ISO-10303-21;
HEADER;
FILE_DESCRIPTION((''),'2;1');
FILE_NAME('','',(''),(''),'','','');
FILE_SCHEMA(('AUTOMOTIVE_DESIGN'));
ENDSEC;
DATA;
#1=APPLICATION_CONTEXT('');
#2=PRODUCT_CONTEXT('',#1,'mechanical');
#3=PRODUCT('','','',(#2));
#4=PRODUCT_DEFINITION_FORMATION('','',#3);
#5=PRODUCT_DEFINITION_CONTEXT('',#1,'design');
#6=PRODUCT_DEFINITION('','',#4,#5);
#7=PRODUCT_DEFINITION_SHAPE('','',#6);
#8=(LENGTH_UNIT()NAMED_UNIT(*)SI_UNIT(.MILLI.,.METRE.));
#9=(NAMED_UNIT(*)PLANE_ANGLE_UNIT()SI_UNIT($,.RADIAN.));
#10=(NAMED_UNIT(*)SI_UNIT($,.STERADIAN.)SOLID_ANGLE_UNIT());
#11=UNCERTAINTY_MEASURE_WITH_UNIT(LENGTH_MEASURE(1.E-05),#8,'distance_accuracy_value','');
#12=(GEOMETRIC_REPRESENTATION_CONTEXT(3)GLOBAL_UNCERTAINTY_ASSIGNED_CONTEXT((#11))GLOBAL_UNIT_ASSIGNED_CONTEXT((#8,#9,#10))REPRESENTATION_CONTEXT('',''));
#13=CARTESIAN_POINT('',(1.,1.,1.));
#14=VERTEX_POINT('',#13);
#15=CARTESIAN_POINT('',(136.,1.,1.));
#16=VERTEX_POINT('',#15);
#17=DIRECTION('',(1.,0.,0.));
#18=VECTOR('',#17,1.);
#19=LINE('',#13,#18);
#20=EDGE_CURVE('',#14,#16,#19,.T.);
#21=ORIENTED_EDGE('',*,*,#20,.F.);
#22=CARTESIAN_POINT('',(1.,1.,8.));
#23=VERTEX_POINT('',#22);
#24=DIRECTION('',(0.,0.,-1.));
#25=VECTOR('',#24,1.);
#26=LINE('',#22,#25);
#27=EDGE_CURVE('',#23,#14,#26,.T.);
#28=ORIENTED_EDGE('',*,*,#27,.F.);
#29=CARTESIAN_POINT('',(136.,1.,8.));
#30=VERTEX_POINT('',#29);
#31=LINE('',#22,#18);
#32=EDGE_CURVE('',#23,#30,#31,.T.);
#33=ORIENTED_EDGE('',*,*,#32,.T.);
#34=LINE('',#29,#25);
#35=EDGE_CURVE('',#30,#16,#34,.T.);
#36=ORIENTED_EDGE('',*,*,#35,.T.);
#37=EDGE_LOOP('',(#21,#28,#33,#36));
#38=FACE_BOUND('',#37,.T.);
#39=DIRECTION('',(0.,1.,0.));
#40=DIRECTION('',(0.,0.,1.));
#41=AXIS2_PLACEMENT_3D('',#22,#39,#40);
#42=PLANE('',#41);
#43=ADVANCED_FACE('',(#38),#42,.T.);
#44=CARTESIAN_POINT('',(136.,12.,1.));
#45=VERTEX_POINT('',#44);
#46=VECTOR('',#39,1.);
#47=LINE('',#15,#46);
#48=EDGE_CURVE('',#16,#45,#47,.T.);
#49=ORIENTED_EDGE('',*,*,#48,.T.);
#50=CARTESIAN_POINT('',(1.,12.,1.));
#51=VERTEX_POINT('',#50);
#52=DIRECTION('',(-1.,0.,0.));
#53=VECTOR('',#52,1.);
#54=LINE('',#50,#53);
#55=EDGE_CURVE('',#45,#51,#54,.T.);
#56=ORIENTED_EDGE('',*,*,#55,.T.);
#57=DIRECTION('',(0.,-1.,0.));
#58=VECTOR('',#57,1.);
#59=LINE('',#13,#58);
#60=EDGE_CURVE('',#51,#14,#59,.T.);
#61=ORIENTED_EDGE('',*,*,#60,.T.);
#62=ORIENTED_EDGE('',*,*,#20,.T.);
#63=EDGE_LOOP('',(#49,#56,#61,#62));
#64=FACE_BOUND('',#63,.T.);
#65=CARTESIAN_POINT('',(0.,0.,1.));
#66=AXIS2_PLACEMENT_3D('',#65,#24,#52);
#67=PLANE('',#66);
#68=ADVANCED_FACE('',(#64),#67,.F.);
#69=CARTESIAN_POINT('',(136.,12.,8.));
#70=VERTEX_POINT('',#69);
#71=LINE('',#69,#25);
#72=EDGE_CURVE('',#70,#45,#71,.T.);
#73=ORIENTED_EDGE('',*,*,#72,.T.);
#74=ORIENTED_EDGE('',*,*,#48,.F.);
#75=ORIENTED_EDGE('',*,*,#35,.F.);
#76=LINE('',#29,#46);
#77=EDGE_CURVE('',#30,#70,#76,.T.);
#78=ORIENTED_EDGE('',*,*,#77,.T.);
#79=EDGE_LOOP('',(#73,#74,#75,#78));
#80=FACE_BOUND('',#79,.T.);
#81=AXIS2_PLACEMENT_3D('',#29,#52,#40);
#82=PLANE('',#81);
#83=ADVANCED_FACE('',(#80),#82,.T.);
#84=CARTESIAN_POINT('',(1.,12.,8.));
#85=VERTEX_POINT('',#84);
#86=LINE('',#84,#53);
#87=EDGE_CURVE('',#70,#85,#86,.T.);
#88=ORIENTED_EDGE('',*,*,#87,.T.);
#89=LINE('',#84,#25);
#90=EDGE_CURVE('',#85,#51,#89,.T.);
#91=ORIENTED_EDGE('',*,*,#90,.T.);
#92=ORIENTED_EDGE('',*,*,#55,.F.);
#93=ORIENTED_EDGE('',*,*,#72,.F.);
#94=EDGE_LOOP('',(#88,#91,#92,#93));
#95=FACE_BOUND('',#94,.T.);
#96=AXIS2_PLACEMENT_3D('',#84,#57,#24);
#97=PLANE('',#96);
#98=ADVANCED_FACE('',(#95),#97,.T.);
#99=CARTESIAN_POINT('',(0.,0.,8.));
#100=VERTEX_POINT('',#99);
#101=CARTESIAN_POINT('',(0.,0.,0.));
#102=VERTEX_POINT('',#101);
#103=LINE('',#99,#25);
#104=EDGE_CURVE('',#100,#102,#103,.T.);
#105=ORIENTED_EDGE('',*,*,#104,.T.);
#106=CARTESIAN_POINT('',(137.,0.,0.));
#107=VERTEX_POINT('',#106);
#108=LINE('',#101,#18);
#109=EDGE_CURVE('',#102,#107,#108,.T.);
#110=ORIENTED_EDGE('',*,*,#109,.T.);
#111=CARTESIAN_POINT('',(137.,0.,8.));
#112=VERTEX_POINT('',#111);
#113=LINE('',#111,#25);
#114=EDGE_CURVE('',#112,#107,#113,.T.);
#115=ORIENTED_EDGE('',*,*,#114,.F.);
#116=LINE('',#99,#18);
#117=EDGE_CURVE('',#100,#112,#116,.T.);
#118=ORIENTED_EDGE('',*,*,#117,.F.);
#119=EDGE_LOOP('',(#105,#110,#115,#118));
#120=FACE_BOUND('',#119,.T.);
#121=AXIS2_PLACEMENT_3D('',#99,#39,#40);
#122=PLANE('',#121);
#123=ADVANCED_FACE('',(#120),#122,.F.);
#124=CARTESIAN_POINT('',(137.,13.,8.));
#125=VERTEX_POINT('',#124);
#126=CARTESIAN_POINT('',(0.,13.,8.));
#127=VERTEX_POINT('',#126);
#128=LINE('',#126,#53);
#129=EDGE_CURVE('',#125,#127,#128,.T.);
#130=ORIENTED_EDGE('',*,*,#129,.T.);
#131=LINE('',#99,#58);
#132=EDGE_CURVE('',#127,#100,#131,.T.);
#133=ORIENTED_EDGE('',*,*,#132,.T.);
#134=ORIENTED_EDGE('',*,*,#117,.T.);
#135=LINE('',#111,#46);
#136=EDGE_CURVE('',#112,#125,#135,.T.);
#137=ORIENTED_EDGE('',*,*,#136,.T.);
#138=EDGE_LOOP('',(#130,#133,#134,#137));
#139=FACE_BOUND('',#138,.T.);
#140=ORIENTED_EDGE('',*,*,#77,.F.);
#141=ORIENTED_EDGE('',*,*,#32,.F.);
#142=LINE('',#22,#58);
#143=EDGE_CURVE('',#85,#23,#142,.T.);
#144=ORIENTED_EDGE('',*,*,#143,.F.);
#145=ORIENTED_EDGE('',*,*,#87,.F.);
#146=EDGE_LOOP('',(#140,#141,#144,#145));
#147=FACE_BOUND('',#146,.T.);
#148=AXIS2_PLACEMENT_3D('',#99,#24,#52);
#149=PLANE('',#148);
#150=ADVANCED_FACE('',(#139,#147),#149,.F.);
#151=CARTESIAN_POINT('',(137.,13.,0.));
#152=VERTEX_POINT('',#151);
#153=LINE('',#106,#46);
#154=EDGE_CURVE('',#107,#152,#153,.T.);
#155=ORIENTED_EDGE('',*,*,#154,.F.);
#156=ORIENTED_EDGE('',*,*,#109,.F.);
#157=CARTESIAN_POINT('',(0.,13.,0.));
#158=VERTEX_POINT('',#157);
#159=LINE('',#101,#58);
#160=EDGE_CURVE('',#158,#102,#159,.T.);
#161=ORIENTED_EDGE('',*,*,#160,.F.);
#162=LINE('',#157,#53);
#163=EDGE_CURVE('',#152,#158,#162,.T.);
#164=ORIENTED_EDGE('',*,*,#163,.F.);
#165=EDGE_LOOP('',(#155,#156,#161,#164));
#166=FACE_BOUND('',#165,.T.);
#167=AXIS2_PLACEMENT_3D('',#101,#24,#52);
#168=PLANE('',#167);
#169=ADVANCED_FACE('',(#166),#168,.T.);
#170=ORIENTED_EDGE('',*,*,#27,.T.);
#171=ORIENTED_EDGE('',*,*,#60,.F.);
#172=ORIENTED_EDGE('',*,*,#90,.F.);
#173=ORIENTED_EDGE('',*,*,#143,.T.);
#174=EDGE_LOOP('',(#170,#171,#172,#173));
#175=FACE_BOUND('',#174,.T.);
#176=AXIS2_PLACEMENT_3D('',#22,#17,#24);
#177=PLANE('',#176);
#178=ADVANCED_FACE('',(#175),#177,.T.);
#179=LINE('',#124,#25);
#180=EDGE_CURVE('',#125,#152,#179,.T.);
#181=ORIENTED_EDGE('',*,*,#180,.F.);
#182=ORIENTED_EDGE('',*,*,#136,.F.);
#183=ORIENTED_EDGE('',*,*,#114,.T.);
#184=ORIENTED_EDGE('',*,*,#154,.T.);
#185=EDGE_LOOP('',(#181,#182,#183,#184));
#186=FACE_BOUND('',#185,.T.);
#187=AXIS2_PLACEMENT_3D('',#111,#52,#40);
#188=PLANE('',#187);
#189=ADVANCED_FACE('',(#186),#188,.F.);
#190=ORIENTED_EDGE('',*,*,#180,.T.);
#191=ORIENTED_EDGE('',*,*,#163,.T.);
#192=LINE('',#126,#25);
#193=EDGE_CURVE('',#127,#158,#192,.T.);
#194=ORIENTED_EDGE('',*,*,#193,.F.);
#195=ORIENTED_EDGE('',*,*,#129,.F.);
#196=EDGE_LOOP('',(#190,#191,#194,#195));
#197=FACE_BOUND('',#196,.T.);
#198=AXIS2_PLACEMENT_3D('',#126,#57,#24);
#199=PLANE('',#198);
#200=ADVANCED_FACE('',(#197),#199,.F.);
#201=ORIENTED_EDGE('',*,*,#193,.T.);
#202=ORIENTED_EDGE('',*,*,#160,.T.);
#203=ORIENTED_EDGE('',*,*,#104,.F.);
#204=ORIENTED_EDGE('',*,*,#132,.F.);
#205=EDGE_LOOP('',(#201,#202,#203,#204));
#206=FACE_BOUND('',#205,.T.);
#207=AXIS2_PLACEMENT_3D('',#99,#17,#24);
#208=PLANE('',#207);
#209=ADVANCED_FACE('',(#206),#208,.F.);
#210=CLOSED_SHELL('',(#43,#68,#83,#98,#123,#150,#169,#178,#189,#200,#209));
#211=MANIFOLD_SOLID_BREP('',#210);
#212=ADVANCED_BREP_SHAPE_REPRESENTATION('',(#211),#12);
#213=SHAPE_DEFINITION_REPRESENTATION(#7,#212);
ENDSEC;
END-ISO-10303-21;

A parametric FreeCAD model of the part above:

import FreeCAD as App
import Part
import Sketcher

V = App.Vector

doc = App.newDocument("Part")
body = doc.addObject("PartDesign::Body", "Body")

# Sketch on XY plane
sketch1 = body.newObject("Sketcher::SketchObject", "Sketch")
sketch1.AttachmentSupport = (doc.getObject("XY_Plane"), [""])
sketch1.MapMode = "FlatFace"
sketch1.addGeometry(Part.LineSegment(V(0, 13, 0), V(0, 0, 0)), False)
sketch1.addGeometry(Part.LineSegment(V(0, 0, 0), V(137, 0, 0)), False)
sketch1.addGeometry(Part.LineSegment(V(137, 0, 0), V(137, 13, 0)), False)
sketch1.addGeometry(Part.LineSegment(V(137, 13, 0), V(0, 13, 0)), False)
sketch1.addGeometry(Part.LineSegment(V(136, 1, 0), V(1, 1, 0)), False)
sketch1.addGeometry(Part.LineSegment(V(1, 1, 0), V(1, 12, 0)), False)
sketch1.addGeometry(Part.LineSegment(V(1, 12, 0), V(136, 12, 0)), False)
sketch1.addGeometry(Part.LineSegment(V(136, 12, 0), V(136, 1, 0)), False)
sketch1.addConstraint(Sketcher.Constraint("Coincident", 0, 2, 1, 1))
sketch1.addConstraint(Sketcher.Constraint("Coincident", 1, 2, 2, 1))
sketch1.addConstraint(Sketcher.Constraint("Coincident", 2, 2, 3, 1))
sketch1.addConstraint(Sketcher.Constraint("Coincident", 3, 2, 0, 1))
sketch1.addConstraint(Sketcher.Constraint("Coincident", 4, 2, 5, 1))
sketch1.addConstraint(Sketcher.Constraint("Coincident", 5, 2, 6, 1))
sketch1.addConstraint(Sketcher.Constraint("Coincident", 6, 2, 7, 1))
sketch1.addConstraint(Sketcher.Constraint("Coincident", 7, 2, 4, 1))
sketch1.addConstraint(Sketcher.Constraint("Vertical", 0))
sketch1.addConstraint(Sketcher.Constraint("Horizontal", 1))
sketch1.addConstraint(Sketcher.Constraint("Vertical", 2))
sketch1.addConstraint(Sketcher.Constraint("Horizontal", 3))
sketch1.addConstraint(Sketcher.Constraint("Horizontal", 4))
sketch1.addConstraint(Sketcher.Constraint("Vertical", 5))
sketch1.addConstraint(Sketcher.Constraint("Horizontal", 6))
sketch1.addConstraint(Sketcher.Constraint("Vertical", 7))
sketch1.addConstraint(Sketcher.Constraint("Coincident", 0, 2, -1, 1))
sketch1.addConstraint(Sketcher.Constraint("DistanceX", 1, 1, 1, 2, 137.0))
sketch1.addConstraint(Sketcher.Constraint("DistanceX", 4, 2, 4, 1, 135.0))
sketch1.addConstraint(Sketcher.Constraint("DistanceY", 0, 2, 0, 1, 13.0))
sketch1.addConstraint(Sketcher.Constraint("DistanceY", 5, 1, 5, 2, 11.0))
sketch1.addConstraint(Sketcher.Constraint("DistanceX", -1, 1, 4, 2, 1.0))
sketch1.addConstraint(Sketcher.Constraint("DistanceY", -1, 1, 4, 2, 1.0))
pad1 = body.newObject("PartDesign::Pad", "Pad")
pad1.Profile = sketch1
pad1.Length = 8

# Sketch on XY plane
sketch2 = body.newObject("Sketcher::SketchObject", "Sketch001")
sketch2.AttachmentSupport = (doc.getObject("XY_Plane"), [""])
sketch2.MapMode = "FlatFace"
sketch2.addGeometry(Part.LineSegment(V(1, 12, 0), V(1, 1, 0)), False)
sketch2.addGeometry(Part.LineSegment(V(1, 1, 0), V(136, 1, 0)), False)
sketch2.addGeometry(Part.LineSegment(V(136, 1, 0), V(136, 12, 0)), False)
sketch2.addGeometry(Part.LineSegment(V(136, 12, 0), V(1, 12, 0)), False)
sketch2.addConstraint(Sketcher.Constraint("Coincident", 0, 2, 1, 1))
sketch2.addConstraint(Sketcher.Constraint("Coincident", 1, 2, 2, 1))
sketch2.addConstraint(Sketcher.Constraint("Coincident", 2, 2, 3, 1))
sketch2.addConstraint(Sketcher.Constraint("Coincident", 3, 2, 0, 1))
sketch2.addConstraint(Sketcher.Constraint("Vertical", 0))
sketch2.addConstraint(Sketcher.Constraint("Horizontal", 1))
sketch2.addConstraint(Sketcher.Constraint("Vertical", 2))
sketch2.addConstraint(Sketcher.Constraint("Horizontal", 3))
sketch2.addConstraint(Sketcher.Constraint("DistanceX", 1, 1, 1, 2, 135.0))
sketch2.addConstraint(Sketcher.Constraint("DistanceY", 0, 2, 0, 1, 11.0))
sketch2.addConstraint(Sketcher.Constraint("DistanceX", -1, 1, 0, 2, 1.0))
sketch2.addConstraint(Sketcher.Constraint("DistanceY", -1, 1, 0, 2, 1.0))
pad2 = body.newObject("PartDesign::Pad", "Pad001")
pad2.Profile = sketch2
pad2.Length = 1

doc.recompute()
